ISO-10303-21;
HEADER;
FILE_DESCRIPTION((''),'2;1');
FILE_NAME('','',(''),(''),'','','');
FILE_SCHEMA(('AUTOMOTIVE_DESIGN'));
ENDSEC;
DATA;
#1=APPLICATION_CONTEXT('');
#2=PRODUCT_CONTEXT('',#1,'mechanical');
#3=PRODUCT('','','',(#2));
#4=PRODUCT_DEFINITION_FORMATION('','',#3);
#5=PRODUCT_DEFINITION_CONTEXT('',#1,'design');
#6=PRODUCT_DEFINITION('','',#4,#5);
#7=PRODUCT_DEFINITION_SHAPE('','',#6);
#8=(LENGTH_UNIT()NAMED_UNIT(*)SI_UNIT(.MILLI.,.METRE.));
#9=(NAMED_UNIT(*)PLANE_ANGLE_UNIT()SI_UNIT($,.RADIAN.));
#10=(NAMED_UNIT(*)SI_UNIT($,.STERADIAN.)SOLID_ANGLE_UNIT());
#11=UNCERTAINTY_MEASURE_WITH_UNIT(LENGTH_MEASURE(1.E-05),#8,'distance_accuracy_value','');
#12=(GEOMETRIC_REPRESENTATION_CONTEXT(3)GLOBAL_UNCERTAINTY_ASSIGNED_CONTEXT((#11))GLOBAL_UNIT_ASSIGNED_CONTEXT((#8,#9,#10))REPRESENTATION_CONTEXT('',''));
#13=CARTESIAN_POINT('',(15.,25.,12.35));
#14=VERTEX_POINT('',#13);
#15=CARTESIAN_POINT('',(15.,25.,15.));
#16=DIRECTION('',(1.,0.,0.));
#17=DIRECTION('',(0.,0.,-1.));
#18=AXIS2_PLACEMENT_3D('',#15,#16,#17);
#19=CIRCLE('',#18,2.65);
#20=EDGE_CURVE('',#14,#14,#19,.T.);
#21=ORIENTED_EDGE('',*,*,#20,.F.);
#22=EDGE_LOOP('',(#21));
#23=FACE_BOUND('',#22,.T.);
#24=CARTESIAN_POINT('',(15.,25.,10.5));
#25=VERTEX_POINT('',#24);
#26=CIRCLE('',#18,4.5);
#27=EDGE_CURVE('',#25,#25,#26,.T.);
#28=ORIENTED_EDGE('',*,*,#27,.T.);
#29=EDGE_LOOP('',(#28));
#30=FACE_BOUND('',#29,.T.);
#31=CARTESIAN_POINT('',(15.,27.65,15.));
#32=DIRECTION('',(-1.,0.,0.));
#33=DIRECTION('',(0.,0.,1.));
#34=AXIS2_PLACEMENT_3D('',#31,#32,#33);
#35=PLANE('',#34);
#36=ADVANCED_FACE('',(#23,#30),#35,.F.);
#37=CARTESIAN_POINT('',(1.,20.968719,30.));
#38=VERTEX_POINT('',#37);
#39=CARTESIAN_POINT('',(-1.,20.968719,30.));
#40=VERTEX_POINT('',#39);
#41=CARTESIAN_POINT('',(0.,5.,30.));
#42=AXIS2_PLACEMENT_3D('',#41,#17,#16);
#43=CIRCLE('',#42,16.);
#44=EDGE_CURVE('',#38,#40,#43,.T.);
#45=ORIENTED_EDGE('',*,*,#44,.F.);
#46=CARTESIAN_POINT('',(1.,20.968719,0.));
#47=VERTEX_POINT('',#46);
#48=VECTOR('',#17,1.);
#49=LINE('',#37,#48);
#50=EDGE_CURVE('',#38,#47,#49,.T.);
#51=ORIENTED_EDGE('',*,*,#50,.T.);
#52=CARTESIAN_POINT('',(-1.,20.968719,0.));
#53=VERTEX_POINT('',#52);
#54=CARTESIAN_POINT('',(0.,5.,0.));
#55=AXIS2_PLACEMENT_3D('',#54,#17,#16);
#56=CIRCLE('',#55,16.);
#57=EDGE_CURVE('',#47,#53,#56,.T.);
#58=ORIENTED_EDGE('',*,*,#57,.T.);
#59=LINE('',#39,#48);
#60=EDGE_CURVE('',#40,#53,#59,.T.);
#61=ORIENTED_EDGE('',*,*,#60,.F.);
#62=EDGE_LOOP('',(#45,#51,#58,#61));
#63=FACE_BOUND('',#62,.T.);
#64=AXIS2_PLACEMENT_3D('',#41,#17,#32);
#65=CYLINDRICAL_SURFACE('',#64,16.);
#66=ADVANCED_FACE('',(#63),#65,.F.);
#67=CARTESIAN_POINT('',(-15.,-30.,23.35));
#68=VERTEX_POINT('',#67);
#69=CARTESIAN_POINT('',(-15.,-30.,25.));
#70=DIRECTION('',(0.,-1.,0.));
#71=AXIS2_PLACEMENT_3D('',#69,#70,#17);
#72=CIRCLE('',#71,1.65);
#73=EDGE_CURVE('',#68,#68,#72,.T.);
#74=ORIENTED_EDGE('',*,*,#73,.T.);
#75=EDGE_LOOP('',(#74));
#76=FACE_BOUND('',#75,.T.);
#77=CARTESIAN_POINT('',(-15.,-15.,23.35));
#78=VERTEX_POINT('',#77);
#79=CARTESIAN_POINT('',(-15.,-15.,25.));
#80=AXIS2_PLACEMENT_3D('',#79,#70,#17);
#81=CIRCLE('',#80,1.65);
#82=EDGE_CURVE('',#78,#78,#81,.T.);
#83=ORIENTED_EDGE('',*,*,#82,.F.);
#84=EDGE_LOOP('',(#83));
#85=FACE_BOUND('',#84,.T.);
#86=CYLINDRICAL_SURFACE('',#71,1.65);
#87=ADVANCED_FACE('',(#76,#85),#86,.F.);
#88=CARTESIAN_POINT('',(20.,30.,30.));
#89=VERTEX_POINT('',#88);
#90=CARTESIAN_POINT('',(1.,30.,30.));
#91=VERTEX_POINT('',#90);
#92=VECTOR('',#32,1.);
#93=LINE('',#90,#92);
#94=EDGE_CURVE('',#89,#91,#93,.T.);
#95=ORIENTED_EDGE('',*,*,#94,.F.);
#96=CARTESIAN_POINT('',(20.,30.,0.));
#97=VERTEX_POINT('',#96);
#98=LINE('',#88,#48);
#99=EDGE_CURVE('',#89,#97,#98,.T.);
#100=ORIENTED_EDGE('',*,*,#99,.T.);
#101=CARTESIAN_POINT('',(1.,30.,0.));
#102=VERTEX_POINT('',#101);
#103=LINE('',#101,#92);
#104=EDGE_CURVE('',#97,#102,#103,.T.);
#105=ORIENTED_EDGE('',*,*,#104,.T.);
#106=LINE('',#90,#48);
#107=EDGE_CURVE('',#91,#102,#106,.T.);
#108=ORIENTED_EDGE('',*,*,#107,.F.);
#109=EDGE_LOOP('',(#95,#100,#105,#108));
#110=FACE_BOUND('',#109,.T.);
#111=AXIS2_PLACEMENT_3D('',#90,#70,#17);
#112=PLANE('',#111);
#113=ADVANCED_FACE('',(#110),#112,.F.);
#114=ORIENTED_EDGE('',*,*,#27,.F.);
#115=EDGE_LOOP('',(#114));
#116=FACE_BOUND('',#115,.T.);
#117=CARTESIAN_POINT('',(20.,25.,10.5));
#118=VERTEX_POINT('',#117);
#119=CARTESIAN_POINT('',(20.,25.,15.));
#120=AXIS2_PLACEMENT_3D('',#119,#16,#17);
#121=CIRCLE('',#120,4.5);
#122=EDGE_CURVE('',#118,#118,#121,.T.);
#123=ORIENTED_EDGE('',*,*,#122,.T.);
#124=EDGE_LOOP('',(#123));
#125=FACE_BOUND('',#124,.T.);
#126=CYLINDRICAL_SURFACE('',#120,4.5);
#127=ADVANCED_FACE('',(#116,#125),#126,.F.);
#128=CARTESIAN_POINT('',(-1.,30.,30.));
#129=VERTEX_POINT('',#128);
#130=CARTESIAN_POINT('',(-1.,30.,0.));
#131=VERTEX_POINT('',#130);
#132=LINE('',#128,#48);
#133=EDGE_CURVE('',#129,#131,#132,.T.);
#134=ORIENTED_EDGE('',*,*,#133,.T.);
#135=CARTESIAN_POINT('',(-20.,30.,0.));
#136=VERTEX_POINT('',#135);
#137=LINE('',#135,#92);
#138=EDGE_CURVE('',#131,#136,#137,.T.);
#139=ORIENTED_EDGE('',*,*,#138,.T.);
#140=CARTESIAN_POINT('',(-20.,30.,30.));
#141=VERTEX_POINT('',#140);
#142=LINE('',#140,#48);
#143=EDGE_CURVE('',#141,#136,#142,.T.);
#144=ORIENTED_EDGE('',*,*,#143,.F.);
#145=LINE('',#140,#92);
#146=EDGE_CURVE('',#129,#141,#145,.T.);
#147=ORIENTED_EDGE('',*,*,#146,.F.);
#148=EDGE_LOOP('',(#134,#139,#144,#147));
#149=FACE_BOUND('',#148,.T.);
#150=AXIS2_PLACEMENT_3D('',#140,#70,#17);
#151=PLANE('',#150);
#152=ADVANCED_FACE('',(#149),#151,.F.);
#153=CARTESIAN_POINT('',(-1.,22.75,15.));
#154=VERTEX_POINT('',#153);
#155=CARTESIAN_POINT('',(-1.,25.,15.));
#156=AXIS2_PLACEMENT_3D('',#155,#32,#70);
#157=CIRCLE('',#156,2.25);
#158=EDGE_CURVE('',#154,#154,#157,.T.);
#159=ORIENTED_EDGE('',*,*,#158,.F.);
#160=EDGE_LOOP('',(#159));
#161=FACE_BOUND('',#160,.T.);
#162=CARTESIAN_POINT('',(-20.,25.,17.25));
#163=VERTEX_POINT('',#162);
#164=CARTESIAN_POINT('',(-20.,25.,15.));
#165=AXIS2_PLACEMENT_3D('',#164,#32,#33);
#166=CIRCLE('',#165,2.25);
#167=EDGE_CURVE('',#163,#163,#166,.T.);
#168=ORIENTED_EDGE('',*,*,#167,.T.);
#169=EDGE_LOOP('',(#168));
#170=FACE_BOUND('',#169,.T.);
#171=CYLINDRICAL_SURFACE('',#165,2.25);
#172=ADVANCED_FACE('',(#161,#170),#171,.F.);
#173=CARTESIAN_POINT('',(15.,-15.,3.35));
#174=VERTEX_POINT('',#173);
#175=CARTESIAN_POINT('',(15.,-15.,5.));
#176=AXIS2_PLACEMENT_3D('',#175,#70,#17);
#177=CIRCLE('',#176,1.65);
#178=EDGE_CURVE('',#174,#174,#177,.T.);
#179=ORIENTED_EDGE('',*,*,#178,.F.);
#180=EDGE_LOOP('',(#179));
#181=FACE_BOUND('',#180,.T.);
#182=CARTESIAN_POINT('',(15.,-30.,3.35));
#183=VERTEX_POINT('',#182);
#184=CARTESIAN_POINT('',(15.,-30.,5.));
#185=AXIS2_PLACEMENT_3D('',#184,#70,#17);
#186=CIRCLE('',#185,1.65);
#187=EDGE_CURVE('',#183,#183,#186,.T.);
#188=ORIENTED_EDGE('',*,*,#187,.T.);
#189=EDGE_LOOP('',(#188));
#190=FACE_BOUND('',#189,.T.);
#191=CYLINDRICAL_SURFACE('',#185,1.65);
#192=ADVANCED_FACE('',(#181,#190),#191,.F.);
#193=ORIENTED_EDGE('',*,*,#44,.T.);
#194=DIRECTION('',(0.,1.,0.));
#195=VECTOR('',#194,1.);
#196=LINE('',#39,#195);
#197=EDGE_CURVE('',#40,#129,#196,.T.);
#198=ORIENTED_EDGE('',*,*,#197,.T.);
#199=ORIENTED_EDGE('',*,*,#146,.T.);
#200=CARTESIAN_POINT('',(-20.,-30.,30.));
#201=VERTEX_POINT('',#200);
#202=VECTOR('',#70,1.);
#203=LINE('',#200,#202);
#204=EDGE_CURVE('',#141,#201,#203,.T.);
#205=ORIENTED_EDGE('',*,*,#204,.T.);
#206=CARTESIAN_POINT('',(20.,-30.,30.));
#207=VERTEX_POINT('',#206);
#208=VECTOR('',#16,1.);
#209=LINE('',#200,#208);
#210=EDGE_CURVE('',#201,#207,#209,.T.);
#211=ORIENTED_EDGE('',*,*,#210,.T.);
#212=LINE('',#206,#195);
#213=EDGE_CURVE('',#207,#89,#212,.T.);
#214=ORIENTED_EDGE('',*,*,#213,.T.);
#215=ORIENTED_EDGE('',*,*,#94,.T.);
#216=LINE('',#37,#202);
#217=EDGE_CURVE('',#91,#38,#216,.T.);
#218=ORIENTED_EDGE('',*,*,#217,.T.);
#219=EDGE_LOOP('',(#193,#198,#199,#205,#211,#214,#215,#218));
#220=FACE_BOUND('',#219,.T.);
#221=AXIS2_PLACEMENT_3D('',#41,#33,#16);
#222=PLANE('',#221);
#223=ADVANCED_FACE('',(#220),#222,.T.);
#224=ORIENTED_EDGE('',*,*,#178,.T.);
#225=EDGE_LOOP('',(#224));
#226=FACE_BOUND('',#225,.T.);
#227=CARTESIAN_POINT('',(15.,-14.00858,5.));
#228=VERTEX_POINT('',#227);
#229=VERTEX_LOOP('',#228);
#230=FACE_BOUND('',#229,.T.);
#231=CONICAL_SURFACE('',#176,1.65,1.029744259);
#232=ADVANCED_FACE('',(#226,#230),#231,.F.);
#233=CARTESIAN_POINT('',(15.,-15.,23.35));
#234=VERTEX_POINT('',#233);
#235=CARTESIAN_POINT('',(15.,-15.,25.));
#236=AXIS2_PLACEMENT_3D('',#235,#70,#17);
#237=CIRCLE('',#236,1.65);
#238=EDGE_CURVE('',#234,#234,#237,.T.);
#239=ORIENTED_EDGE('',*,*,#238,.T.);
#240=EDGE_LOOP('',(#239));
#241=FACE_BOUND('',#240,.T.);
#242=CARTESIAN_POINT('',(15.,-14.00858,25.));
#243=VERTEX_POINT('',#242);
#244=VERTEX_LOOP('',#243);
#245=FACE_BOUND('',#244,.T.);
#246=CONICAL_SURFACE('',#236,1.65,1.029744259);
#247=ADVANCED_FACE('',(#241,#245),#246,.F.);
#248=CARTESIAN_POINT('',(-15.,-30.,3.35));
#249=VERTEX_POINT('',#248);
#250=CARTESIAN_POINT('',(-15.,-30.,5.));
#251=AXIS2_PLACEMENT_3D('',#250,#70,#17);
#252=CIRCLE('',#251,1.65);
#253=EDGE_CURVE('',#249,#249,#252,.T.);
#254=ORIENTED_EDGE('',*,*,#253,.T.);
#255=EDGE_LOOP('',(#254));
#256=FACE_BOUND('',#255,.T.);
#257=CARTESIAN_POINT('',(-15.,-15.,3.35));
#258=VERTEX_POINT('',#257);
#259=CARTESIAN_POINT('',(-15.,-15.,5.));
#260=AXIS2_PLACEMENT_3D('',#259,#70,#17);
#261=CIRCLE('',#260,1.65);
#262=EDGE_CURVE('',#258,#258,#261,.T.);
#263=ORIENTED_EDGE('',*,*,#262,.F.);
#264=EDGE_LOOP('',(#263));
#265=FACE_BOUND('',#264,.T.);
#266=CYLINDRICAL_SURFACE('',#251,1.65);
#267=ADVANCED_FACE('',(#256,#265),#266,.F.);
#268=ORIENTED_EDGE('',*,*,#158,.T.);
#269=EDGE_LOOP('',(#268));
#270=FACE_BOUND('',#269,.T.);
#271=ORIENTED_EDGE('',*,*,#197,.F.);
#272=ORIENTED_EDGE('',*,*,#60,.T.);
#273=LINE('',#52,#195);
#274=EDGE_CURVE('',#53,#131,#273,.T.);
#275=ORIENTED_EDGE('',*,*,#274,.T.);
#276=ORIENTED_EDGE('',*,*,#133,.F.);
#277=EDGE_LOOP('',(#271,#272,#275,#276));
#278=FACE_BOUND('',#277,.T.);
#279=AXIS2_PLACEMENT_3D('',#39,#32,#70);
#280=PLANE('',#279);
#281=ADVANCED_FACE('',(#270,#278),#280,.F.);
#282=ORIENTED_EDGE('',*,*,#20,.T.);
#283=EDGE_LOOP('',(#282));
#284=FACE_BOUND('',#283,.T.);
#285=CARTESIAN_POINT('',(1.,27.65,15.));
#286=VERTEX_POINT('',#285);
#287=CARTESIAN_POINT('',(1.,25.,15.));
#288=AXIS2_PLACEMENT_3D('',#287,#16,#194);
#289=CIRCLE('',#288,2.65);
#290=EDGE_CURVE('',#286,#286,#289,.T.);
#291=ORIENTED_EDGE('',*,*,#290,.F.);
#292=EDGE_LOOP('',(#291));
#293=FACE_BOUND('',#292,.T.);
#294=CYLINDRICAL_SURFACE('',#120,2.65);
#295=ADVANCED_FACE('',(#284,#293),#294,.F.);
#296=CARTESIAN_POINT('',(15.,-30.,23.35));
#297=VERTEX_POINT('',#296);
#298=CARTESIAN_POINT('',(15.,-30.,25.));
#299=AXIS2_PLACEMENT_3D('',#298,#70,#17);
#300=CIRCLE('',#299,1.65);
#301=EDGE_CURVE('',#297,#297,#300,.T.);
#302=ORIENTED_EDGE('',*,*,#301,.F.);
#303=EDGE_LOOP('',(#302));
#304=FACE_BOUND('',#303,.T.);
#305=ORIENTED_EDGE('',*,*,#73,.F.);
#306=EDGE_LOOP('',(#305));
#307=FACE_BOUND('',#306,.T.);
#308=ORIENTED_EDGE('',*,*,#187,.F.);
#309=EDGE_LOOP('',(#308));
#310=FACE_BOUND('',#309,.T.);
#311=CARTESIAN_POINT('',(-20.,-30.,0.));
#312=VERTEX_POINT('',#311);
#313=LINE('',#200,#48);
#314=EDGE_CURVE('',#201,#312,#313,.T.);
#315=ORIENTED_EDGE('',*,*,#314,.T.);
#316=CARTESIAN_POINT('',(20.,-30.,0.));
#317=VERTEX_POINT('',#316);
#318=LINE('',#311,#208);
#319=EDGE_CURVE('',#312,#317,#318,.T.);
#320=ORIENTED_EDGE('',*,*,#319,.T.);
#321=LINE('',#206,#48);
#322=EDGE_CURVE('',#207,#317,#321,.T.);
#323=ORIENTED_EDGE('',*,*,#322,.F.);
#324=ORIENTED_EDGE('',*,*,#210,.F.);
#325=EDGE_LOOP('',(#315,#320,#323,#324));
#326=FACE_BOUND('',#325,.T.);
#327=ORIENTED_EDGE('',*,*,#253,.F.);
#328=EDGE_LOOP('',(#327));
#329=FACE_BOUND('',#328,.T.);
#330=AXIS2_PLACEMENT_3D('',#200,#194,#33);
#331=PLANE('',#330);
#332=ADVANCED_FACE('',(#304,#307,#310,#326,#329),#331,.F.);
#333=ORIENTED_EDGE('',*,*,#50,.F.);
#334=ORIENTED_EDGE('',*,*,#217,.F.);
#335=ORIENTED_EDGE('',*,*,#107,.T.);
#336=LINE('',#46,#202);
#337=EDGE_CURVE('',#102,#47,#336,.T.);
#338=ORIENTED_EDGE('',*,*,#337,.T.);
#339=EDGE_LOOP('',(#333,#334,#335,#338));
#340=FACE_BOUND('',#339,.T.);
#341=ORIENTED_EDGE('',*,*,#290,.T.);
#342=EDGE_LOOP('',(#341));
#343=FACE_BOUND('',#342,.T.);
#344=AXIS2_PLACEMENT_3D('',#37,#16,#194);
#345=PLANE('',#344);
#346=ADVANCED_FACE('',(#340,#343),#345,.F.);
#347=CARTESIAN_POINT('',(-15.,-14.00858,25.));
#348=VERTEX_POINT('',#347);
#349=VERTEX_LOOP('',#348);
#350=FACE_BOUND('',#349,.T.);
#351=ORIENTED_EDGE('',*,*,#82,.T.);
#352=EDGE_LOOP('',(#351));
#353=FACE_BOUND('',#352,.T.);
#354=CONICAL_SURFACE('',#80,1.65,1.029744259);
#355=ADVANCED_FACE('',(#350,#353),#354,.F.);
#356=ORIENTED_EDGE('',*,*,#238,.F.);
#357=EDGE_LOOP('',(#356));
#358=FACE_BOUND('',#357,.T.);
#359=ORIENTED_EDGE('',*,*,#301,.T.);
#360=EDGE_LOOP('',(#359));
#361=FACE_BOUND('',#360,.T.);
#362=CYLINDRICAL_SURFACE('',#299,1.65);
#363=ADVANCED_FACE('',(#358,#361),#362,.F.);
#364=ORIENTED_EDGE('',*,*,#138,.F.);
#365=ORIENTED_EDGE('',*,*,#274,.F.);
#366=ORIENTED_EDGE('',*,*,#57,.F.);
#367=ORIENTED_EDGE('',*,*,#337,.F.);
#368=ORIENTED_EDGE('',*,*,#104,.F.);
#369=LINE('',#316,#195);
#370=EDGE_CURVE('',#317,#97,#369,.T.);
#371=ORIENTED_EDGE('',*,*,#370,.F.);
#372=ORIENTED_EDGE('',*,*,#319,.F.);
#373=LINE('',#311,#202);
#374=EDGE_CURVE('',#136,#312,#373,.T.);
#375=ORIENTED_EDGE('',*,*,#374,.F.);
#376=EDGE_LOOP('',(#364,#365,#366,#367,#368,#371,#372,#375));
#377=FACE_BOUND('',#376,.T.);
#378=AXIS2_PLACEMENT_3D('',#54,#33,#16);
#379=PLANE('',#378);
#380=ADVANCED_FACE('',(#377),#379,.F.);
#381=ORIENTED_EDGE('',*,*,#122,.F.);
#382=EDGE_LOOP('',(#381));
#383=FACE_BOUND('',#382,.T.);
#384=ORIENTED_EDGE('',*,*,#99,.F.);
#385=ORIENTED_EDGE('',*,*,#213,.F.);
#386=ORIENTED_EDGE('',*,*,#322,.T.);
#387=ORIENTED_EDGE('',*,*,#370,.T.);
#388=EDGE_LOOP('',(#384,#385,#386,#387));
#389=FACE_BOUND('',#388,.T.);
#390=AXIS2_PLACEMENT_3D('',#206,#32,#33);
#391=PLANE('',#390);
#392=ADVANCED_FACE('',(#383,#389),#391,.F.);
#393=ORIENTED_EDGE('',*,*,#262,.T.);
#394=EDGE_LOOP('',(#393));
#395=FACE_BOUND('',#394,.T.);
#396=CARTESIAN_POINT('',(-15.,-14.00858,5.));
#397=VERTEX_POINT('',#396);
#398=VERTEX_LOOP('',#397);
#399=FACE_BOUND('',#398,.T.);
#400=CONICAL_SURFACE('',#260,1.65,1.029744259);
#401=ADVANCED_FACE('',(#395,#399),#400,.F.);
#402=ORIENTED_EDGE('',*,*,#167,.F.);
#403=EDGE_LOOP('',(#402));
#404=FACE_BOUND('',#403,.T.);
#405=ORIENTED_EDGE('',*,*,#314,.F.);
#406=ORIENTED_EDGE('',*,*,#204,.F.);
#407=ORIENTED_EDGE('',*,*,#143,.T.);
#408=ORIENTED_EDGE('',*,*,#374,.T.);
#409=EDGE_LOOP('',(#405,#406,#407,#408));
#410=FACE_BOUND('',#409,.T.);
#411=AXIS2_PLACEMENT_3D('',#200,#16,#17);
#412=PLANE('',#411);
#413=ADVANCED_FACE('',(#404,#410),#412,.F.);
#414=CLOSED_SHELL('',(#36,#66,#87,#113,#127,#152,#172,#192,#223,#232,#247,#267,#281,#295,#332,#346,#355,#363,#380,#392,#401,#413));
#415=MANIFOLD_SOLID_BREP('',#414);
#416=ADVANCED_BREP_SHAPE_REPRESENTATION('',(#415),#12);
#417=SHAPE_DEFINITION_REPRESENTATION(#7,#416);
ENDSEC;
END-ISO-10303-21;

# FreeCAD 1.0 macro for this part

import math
import FreeCAD as App
import Part
import Sketcher

doc = App.newDocument("Part")
params = doc.addObject("Spreadsheet::Sheet", "Params")
for row, (alias, value) in enumerate([
    ("sketch1_radius", "16 mm"),
    ("sketch1_width", "40 mm"),
    ("sketch1_width2", "19 mm"),
    ("sketch1_height", "60 mm"),
    ("pad1_length", "30 mm"),
    ("sketch2_diameter", "3.3 mm"),
    ("hole_diameter", "3.3 mm"),
    ("hole_depth", "15 mm"),
    ("sketch3_diameter", "5.3 mm"),
    ("hole2_diameter", "5.3 mm"),
    ("hole2_cbore_diameter", "9 mm"),
    ("hole2_cbore_depth", "5 mm"),
    ("sketch4_diameter", "5.3 mm"),
    ("pad2_length", "19 mm"),
    ("sketch5_diameter", "4.5 mm"),
    ("hole3_diameter", "4.5 mm"),
], start=1):
    params.set(f"A{row}", alias)
    params.set(f"B{row}", "=" + value)
    params.setAlias(f"B{row}", alias)

body = doc.addObject("PartDesign::Body", "Body")

sketch1 = doc.addObject("Sketcher::SketchObject", "Sketch")
body.addObject(sketch1)
sketch1.AttachmentSupport = (doc.XY_Plane, [""])
sketch1.MapMode = "FlatFace"
sketch1.addGeometry([
    Part.LineSegment(App.Vector(-20, -30, 0), App.Vector(20, -30, 0)),
    Part.LineSegment(App.Vector(20, -30, 0), App.Vector(20, 30, 0)),
    Part.LineSegment(App.Vector(20, 30, 0), App.Vector(1, 30, 0)),
    Part.LineSegment(App.Vector(1, 30, 0), App.Vector(1, 21, 0)),
    Part.ArcOfCircle(Part.Circle(App.Vector(0, 5, 0), App.Vector(0, 0, 1), 16), math.radians(94), math.radians(446)),
    Part.LineSegment(App.Vector(-1, 21, 0), App.Vector(-1, 30, 0)),
    Part.LineSegment(App.Vector(-1, 30, 0), App.Vector(-20, 30, 0)),
    Part.LineSegment(App.Vector(-20, 30, 0), App.Vector(-20, -30, 0)),
], False)
sketch1.addConstraint([
    Sketcher.Constraint("Coincident", 0, 2, 1, 1),
    Sketcher.Constraint("Coincident", 1, 2, 2, 1),
    Sketcher.Constraint("Coincident", 2, 2, 3, 1),
    Sketcher.Constraint("Coincident", 3, 2, 4, 2),
    Sketcher.Constraint("Coincident", 4, 1, 5, 1),
    Sketcher.Constraint("Coincident", 5, 2, 6, 1),
    Sketcher.Constraint("Coincident", 6, 2, 7, 1),
    Sketcher.Constraint("Coincident", 7, 2, 0, 1),
    Sketcher.Constraint("Horizontal", 0),
    Sketcher.Constraint("Vertical", 1),
    Sketcher.Constraint("Horizontal", 2),
    Sketcher.Constraint("Vertical", 3),
    Sketcher.Constraint("Vertical", 5),
    Sketcher.Constraint("Horizontal", 6),
    Sketcher.Constraint("Vertical", 7),
    Sketcher.Constraint("Symmetric", 0, 2, 6, 2, -1, 1),
    Sketcher.Constraint("Symmetric", 3, 2, 4, 1, -2),
    Sketcher.Constraint("Horizontal", 2, 2, 5, 2),
    Sketcher.Constraint("Radius", 4, 16.0),
    Sketcher.Constraint("DistanceX", 0, 1, 0, 2, 40.0),
    Sketcher.Constraint("DistanceX", 2, 2, 2, 1, 19.0),
    Sketcher.Constraint("DistanceY", 1, 1, 1, 2, 60.0),
    Sketcher.Constraint("DistanceY", -1, 1, 4, 3, 5.0),
])
sketch1.setExpression("Constraints[18]", "Params.sketch1_radius")
sketch1.setExpression("Constraints[19]", "Params.sketch1_width")
sketch1.setExpression("Constraints[20]", "Params.sketch1_width2")
sketch1.setExpression("Constraints[21]", "Params.sketch1_height")
pad1 = doc.addObject("PartDesign::Pad", "Pad")
body.addObject(pad1)
pad1.Profile = sketch1
pad1.setExpression("Length", "Params.pad1_length")

sketch2 = doc.addObject("Sketcher::SketchObject", "Sketch001")
body.addObject(sketch2)
sketch2.AttachmentSupport = (doc.XZ_Plane, [""])
sketch2.MapMode = "FlatFace"
sketch2.AttachmentOffset = App.Placement(App.Vector(0, 0, 30), App.Rotation())
sketch2.addGeometry([
    Part.Circle(App.Vector(15, 5, 0), App.Vector(0, 0, 1), 1.6),
    Part.Circle(App.Vector(15, 25, 0), App.Vector(0, 0, 1), 1.6),
    Part.Circle(App.Vector(-15, 5, 0), App.Vector(0, 0, 1), 1.6),
    Part.Circle(App.Vector(-15, 25, 0), App.Vector(0, 0, 1), 1.6),
], False)
sketch2.addConstraint([
    Sketcher.Constraint("Equal", 0, 1),
    Sketcher.Constraint("Equal", 1, 2),
    Sketcher.Constraint("Equal", 2, 3),
    Sketcher.Constraint("Symmetric", 0, 3, 2, 3, -2),
    Sketcher.Constraint("Symmetric", 1, 3, 3, 3, -2),
    Sketcher.Constraint("Vertical", 0, 3, 1, 3),
    Sketcher.Constraint("Diameter", 0, 3.3),
    Sketcher.Constraint("DistanceX", -1, 1, 0, 3, 15.0),
    Sketcher.Constraint("DistanceY", -1, 1, 0, 3, 5.0),
    Sketcher.Constraint("DistanceY", -1, 1, 1, 3, 25.0),
])
sketch2.setExpression("Constraints[6]", "Params.sketch2_diameter")
doc.recompute()
hole = doc.addObject("PartDesign::Hole", "Hole")
body.addObject(hole)
hole.Profile = sketch2
hole.ThreadType = "None"
hole.setExpression("Diameter", "Params.hole_diameter")
hole.DepthType = "Dimension"
hole.setExpression("Depth", "Params.hole_depth")
hole.DrillPoint = "Angled"
hole.DrillPointAngle = 118

sketch3 = doc.addObject("Sketcher::SketchObject", "Sketch002")
body.addObject(sketch3)
sketch3.AttachmentSupport = (doc.YZ_Plane, [""])
sketch3.MapMode = "FlatFace"
sketch3.AttachmentOffset = App.Placement(App.Vector(0, 0, 20), App.Rotation())
sketch3.addGeometry(Part.Circle(App.Vector(25, 15, 0), App.Vector(0, 0, 1), 2.6), False)
sketch3.addConstraint([
    Sketcher.Constraint("Diameter", 0, 5.3),
    Sketcher.Constraint("DistanceX", -1, 1, 0, 3, 25.0),
    Sketcher.Constraint("DistanceY", -1, 1, 0, 3, 15.0),
])
sketch3.setExpression("Constraints[0]", "Params.sketch3_diameter")
doc.recompute()
hole2 = doc.addObject("PartDesign::Hole", "Hole001")
body.addObject(hole2)
hole2.Profile = sketch3
hole2.ThreadType = "None"
hole2.setExpression("Diameter", "Params.hole2_diameter")
hole2.DepthType = "ThroughAll"
hole2.HoleCutType = "Counterbore"
hole2.setExpression("HoleCutDiameter", "Params.hole2_cbore_diameter")
hole2.setExpression("HoleCutDepth", "Params.hole2_cbore_depth")

sketch4 = doc.addObject("Sketcher::SketchObject", "Sketch003")
body.addObject(sketch4)
sketch4.AttachmentSupport = (doc.YZ_Plane, [""])
sketch4.MapMode = "FlatFace"
sketch4.AttachmentOffset = App.Placement(App.Vector(0, 0, -20), App.Rotation())
sketch4.addGeometry(Part.Circle(App.Vector(25, 15, 0), App.Vector(0, 0, 1), 2.6), False)
sketch4.addConstraint([
    Sketcher.Constraint("Diameter", 0, 5.3),
    Sketcher.Constraint("DistanceX", -1, 1, 0, 3, 25.0),
    Sketcher.Constraint("DistanceY", -1, 1, 0, 3, 15.0),
])
sketch4.setExpression("Constraints[0]", "Params.sketch4_diameter")
pad2 = doc.addObject("PartDesign::Pad", "Pad001")
body.addObject(pad2)
pad2.Profile = sketch4
pad2.setExpression("Length", "Params.pad2_length")

sketch5 = doc.addObject("Sketcher::SketchObject", "Sketch004")
body.addObject(sketch5)
sketch5.AttachmentSupport = (doc.YZ_Plane, [""])
sketch5.MapMode = "FlatFace"
sketch5.AttachmentOffset = App.Placement(App.Vector(0, 0, -20), App.Rotation())
sketch5.addGeometry(Part.Circle(App.Vector(25, 15, 0), App.Vector(0, 0, 1), 2.2), False)
sketch5.addConstraint([
    Sketcher.Constraint("Diameter", 0, 4.5),
    Sketcher.Constraint("DistanceX", -1, 1, 0, 3, 25.0),
    Sketcher.Constraint("DistanceY", -1, 1, 0, 3, 15.0),
])
sketch5.setExpression("Constraints[0]", "Params.sketch5_diameter")
doc.recompute()
hole3 = doc.addObject("PartDesign::Hole", "Hole002")
body.addObject(hole3)
hole3.Profile = sketch5
hole3.ThreadType = "None"
hole3.setExpression("Diameter", "Params.hole3_diameter")
hole3.DepthType = "ThroughAll"
hole3.Reversed = True

doc.recompute()
